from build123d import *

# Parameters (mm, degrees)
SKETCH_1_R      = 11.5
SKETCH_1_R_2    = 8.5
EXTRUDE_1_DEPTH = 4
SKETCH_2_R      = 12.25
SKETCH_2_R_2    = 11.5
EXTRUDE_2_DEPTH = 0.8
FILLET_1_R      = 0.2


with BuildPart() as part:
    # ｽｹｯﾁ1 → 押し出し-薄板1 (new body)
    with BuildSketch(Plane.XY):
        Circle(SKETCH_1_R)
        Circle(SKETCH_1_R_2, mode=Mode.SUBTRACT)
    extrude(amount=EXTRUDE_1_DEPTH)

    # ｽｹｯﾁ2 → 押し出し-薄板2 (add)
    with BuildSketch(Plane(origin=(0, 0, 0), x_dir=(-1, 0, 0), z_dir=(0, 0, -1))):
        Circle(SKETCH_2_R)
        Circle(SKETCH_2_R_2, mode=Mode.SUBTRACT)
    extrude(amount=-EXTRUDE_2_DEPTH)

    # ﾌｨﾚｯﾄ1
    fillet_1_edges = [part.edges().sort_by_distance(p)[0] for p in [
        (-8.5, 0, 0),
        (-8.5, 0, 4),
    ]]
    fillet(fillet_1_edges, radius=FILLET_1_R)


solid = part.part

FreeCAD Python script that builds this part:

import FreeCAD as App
import Part
import Sketcher

V = App.Vector
Q = App.Units.Quantity


def edges_at(feature, points):
    """Names of the edges that pass closest to the given points."""
    edges = feature.Shape.Edges
    near = lambda p: min(range(len(edges)), key=lambda i: edges[i].distToShape(Part.Vertex(*p))[0])
    return sorted({f"Edge{near(p) + 1}" for p in points})

doc = App.newDocument("Part")
params = doc.addObject("Spreadsheet::Sheet", "Params")
for row, (alias, value) in enumerate([
    ("sketch1_diameter", "23 mm"),
    ("sketch1_diameter2", "17 mm"),
    ("pad1_length", "4 mm"),
    ("sketch2_diameter", "23 mm"),
    ("sketch2_diameter2", "24.5 mm"),
    ("pad2_length", "0.8 mm"),
    ("fillet_radius", "0.2 mm"),
], start=1):
    params.set(f"A{row}", alias)
    params.set(f"B{row}", "=" + value)
    params.setAlias(f"B{row}", alias)

body = doc.addObject("PartDesign::Body", "Body")

# Sketch on XY plane
sketch1 = doc.addObject("Sketcher::SketchObject", "Sketch")
body.addObject(sketch1)
sketch1.AttachmentSupport = (doc.XY_Plane, [""])
sketch1.MapMode = "FlatFace"
sketch1.addGeometry(Part.Circle(V(0, 0, 0), V(0, 0, 1), 11.5), False)
sketch1.addGeometry(Part.Circle(V(0, 0, 0), V(0, 0, 1), 8.5), False)
sketch1.addConstraint(Sketcher.Constraint("Coincident", 0, 3, -1, 1))
sketch1.addConstraint(Sketcher.Constraint("Coincident", 1, 3, -1, 1))
sketch1.addConstraint(Sketcher.Constraint("Diameter", 0, Q("23 mm")))
sketch1.addConstraint(Sketcher.Constraint("Diameter", 1, Q("17 mm")))
sketch1.setExpression("Constraints[2]", "Params.sketch1_diameter")
sketch1.setExpression("Constraints[3]", "Params.sketch1_diameter2")
pad1 = doc.addObject("PartDesign::Pad", "Pad")
body.addObject(pad1)
pad1.Profile = sketch1
pad1.setExpression("Length", "Params.pad1_length")

# Sketch on XY plane
sketch2 = doc.addObject("Sketcher::SketchObject", "Sketch001")
body.addObject(sketch2)
sketch2.AttachmentSupport = (doc.XY_Plane, [""])
sketch2.MapMode = "FlatFace"
sketch2.addGeometry(Part.Circle(V(0, 0, 0), V(0, 0, 1), 12.25), False)
sketch2.addGeometry(Part.Circle(V(0, 0, 0), V(0, 0, 1), 11.5), False)
sketch2.addConstraint(Sketcher.Constraint("Coincident", 0, 3, -1, 1))
sketch2.addConstraint(Sketcher.Constraint("Coincident", 1, 3, -1, 1))
sketch2.addConstraint(Sketcher.Constraint("Diameter", 1, Q("23 mm")))
sketch2.addConstraint(Sketcher.Constraint("Diameter", 0, Q("24.5 mm")))
sketch2.setExpression("Constraints[2]", "Params.sketch2_diameter")
sketch2.setExpression("Constraints[3]", "Params.sketch2_diameter2")
pad2 = doc.addObject("PartDesign::Pad", "Pad001")
body.addObject(pad2)
pad2.Profile = sketch2
pad2.setExpression("Length", "Params.pad2_length")
doc.recompute()

fillet = doc.addObject("PartDesign::Fillet", "Fillet")
body.addObject(fillet)
fillet.Base = (pad2, edges_at(pad2, [(-8.5, 0, 0), (-8.5, 0, 4)]))
fillet.setExpression("Radius", "Params.fillet_radius")

doc.recompute()
